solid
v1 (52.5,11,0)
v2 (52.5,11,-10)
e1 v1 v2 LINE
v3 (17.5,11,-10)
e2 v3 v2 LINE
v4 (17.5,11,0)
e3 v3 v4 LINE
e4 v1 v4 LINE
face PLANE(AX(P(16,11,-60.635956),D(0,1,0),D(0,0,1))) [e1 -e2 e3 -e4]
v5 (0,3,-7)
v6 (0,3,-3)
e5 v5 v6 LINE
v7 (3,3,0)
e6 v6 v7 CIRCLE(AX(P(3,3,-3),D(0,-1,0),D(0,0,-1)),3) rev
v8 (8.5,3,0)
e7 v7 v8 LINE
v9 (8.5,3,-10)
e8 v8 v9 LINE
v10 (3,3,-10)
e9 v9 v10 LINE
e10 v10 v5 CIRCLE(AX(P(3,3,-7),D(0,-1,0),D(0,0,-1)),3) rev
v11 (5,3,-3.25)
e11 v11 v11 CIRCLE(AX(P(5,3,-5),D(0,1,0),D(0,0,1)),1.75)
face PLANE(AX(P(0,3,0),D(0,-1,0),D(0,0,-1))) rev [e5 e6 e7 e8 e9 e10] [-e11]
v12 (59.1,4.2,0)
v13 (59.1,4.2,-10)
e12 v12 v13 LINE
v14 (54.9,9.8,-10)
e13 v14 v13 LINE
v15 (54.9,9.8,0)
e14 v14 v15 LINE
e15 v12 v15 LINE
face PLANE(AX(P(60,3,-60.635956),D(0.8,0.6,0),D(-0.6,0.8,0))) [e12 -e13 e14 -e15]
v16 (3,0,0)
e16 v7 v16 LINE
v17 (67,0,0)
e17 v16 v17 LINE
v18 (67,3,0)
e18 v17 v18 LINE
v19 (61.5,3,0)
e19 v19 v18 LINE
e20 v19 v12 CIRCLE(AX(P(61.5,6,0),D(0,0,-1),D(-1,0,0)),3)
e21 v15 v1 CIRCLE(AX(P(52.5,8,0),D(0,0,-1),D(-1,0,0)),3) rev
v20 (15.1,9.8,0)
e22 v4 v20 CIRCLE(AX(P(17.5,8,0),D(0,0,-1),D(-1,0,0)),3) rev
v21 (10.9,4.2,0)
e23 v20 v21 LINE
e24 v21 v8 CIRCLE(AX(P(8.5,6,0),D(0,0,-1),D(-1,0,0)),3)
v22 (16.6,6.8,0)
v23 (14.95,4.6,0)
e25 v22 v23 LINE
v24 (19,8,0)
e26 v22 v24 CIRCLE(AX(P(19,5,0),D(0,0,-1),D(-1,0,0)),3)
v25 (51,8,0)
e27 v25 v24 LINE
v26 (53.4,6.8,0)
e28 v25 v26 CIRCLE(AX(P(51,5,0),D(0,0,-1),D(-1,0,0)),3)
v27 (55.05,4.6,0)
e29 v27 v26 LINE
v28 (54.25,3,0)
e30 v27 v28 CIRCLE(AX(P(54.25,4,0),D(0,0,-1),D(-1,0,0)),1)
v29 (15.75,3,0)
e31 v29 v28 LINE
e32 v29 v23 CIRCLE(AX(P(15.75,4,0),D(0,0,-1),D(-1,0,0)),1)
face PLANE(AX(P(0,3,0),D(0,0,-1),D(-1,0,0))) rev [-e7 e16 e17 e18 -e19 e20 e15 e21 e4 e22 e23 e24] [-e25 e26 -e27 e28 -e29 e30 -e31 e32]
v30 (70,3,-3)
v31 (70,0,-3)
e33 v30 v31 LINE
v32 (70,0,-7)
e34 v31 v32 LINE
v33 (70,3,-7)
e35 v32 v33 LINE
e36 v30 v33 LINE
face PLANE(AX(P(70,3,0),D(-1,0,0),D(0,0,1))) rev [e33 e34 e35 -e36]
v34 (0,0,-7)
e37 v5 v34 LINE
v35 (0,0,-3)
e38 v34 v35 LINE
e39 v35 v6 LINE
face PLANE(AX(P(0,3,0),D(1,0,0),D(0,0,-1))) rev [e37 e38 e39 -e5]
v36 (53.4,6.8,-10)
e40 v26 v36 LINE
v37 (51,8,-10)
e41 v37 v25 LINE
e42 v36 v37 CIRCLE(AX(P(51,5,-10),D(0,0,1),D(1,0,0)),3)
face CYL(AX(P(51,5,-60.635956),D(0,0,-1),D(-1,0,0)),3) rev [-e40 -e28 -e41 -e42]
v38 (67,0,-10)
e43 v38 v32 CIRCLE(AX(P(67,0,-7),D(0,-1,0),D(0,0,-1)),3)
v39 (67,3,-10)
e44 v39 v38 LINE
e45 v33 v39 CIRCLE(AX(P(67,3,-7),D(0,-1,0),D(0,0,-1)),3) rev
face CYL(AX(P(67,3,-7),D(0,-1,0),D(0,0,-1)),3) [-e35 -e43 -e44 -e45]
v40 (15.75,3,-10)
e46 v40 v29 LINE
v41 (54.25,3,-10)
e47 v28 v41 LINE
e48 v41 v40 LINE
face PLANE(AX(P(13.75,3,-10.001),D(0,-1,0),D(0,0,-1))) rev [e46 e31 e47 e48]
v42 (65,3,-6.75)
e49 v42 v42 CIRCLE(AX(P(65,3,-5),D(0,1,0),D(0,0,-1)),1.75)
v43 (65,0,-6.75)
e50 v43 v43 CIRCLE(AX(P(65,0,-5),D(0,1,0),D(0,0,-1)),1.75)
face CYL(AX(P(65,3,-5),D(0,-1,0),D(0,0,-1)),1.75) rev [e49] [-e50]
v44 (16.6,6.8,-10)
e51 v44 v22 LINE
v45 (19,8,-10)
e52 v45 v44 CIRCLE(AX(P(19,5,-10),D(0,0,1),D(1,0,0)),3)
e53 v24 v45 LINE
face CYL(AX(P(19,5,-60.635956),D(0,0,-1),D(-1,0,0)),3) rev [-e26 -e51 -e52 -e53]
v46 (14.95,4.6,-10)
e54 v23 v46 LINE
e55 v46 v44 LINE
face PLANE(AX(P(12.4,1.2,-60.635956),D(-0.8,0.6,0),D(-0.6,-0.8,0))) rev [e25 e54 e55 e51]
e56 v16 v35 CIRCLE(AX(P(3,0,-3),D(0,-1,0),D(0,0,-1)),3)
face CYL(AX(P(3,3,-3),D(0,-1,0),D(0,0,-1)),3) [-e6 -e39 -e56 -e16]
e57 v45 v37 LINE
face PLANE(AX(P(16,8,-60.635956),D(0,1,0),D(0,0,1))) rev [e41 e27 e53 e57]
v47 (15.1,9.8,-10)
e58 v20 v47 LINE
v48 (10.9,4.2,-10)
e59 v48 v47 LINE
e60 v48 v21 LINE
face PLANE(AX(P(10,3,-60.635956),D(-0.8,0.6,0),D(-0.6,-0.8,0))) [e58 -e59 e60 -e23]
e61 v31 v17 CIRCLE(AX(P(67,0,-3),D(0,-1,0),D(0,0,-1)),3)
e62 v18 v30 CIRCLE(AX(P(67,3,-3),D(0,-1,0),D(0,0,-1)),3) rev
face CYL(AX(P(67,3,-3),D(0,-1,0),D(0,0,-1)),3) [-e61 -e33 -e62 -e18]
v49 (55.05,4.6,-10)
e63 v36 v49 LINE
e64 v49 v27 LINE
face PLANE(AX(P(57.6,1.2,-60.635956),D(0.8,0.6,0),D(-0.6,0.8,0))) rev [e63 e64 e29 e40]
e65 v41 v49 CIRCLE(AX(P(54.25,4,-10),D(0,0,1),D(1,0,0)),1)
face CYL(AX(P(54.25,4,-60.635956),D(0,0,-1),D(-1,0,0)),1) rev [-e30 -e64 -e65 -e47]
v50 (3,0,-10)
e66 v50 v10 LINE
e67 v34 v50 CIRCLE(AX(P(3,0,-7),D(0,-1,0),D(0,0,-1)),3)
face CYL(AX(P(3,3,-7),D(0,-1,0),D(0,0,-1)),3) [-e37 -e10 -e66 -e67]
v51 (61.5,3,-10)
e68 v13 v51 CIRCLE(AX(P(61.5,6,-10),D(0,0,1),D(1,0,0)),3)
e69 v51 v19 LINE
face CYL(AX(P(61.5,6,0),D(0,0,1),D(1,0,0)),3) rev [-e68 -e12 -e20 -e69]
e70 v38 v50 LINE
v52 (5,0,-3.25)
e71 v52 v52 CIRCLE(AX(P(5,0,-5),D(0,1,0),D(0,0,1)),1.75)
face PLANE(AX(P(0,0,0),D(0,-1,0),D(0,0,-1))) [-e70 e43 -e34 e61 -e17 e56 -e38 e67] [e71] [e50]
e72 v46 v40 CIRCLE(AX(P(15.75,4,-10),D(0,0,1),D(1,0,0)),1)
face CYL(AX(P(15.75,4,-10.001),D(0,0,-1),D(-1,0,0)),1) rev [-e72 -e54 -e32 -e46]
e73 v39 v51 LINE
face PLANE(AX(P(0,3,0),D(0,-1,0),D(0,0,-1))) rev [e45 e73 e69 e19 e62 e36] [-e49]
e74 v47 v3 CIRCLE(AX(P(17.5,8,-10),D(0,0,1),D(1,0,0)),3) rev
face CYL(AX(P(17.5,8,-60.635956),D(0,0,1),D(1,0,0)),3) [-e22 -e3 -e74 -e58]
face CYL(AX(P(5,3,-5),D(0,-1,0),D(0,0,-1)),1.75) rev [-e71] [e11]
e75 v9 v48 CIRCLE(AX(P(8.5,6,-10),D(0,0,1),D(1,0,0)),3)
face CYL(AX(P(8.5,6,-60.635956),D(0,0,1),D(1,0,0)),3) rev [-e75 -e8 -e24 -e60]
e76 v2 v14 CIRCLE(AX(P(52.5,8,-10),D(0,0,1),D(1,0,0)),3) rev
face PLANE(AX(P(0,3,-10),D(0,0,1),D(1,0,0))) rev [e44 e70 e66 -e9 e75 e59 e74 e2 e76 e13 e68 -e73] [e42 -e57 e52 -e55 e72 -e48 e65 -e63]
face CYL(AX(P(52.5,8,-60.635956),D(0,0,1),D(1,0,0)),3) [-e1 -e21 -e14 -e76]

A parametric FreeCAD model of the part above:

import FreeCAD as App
import Part
import Sketcher
from FreeCAD import Vector
Q = App.Units.Quantity


def edges_at(feature, points):
    """Names of the edges that pass closest to the given points."""
    edges = feature.Shape.Edges
    near = lambda p: min(range(len(edges)), key=lambda i: edges[i].distToShape(Part.Vertex(*p))[0])
    return sorted({f"Edge{near(p) + 1}" for p in points})


def add_polygon(sketch, points):
    """Adds a closed chain of lines whose ends are joined by coincident constraints."""
    first, n = sketch.GeometryCount, len(points)
    for a, b in zip(points, points[1:] + points[:1]):
        sketch.addGeometry(Part.LineSegment(App.Vector(*a, 0), App.Vector(*b, 0)), False)
    for i in range(n):
        sketch.addConstraint(Sketcher.Constraint("Coincident", first + i, 2, first + (i + 1) % n, 1))

doc = App.newDocument("Part")
body = doc.addObject("PartDesign::Body", "Body")

sketch1 = body.newObject("Sketcher::SketchObject", "Sketch")
sketch1.AttachmentSupport = (doc.getObject("XZ_Plane"), [""])
sketch1.MapMode = "FlatFace"
add_polygon(sketch1, [(0, -10), (0, 0), (70, 0), (70, -10)])
sketch1.addGeometry(Part.Circle(Vector(5, -5, 0), Vector(0, 0, 1), 1.8), False)
sketch1.addGeometry(Part.Circle(Vector(65, -5, 0), Vector(0, 0, 1), 1.8), False)
sketch1.addConstraint(Sketcher.Constraint("Vertical", 0))
sketch1.addConstraint(Sketcher.Constraint("Horizontal", 1))
sketch1.addConstraint(Sketcher.Constraint("Vertical", 2))
sketch1.addConstraint(Sketcher.Constraint("Horizontal", 3))
sketch1.addConstraint(Sketcher.Constraint("Coincident", 0, 2, -1, 1))
sketch1.addConstraint(Sketcher.Constraint("Equal", 4, 5))
sketch1.addConstraint(Sketcher.Constraint("Horizontal", 4, 3, 5, 3))
sketch1.addConstraint(Sketcher.Constraint("Diameter", 4, Q("3.5 mm")))
sketch1.addConstraint(Sketcher.Constraint("DistanceX", 1, 1, 1, 2, Q("70 mm")))
sketch1.addConstraint(Sketcher.Constraint("DistanceY", 0, 1, 0, 2, Q("10 mm")))
sketch1.addConstraint(Sketcher.Constraint("DistanceX", -1, 1, 4, 3, Q("5 mm")))
sketch1.addConstraint(Sketcher.Constraint("DistanceY", 4, 3, -1, 1, Q("5 mm")))
sketch1.addConstraint(Sketcher.Constraint("DistanceX", -1, 1, 5, 3, Q("65 mm")))
pad1 = body.newObject("PartDesign::Pad", "Pad")
pad1.Profile = sketch1
pad1.Length = 3
pad1.Reversed = True

sketch2 = body.newObject("Sketcher::SketchObject", "Sketch001")
sketch2.AttachmentSupport = (doc.getObject("XY_Plane"), [""])
sketch2.MapMode = "FlatFace"
add_polygon(sketch2, [(16, 11), (10, 3), (60, 3), (54, 11)])
add_polygon(sketch2, [(16, 6), (17.5, 8), (52.5, 8), (54, 6)])
sketch2.addConstraint(Sketcher.Constraint("Horizontal", 1))
sketch2.addConstraint(Sketcher.Constraint("Horizontal", 3))
sketch2.addConstraint(Sketcher.Constraint("Horizontal", 5))
sketch2.addConstraint(Sketcher.Constraint("Horizontal", 7))
sketch2.addConstraint(Sketcher.Constraint("Parallel", 0, 4))
sketch2.addConstraint(Sketcher.Constraint("Parallel", 2, 6))
sketch2.addConstraint(Sketcher.Constraint("Vertical", 2, 2, 6, 2))
sketch2.addConstraint(Sketcher.Constraint("Vertical", 3, 2, 7, 2))
sketch2.addConstraint(Sketcher.Constraint("Equal", 0, 2))
sketch2.addConstraint(Sketcher.Constraint("DistanceX", 1, 1, 1, 2, Q("50 mm")))
sketch2.addConstraint(Sketcher.Constraint("DistanceX", 3, 2, 3, 1, Q("38 mm")))
sketch2.addConstraint(Sketcher.Constraint("DistanceX", 5, 1, 5, 2, Q("35 mm")))
sketch2.addConstraint(Sketcher.Constraint("Distance", 0, Q("10 mm")))
sketch2.addConstraint(Sketcher.Constraint("DistanceX", -1, 1, 0, 2, Q("10 mm")))
sketch2.addConstraint(Sketcher.Constraint("DistanceY", -1, 1, 0, 2, Q("3 mm")))
sketch2.addConstraint(Sketcher.Constraint("DistanceY", -1, 1, 4, 2, Q("8 mm")))
pad2 = body.newObject("PartDesign::Pad", "Pad001")
pad2.Profile = sketch2
pad2.Length = 10
pad2.Reversed = True

sketch3 = body.newObject("Sketcher::SketchObject", "Sketch002")
sketch3.AttachmentSupport = (doc.getObject("XY_Plane"), [""])
sketch3.MapMode = "FlatFace"
add_polygon(sketch3, [(16, 6), (13.8, 3), (56.2, 3), (54, 6)])
sketch3.addConstraint(Sketcher.Constraint("Horizontal", 1))
sketch3.addConstraint(Sketcher.Constraint("Horizontal", 3))
sketch3.addConstraint(Sketcher.Constraint("Equal", 0, 2))
sketch3.addConstraint(Sketcher.Constraint("DistanceX", 3, 2, 3, 1, Q("38 mm")))
sketch3.addConstraint(Sketcher.Constraint("DistanceX", 1, 1, 1, 2, Q("42.5 mm")))
sketch3.addConstraint(Sketcher.Constraint("DistanceY", -1, 1, 0, 2, Q("3 mm")))
sketch3.addConstraint(Sketcher.Constraint("DistanceX", -1, 1, 2, 2, Q("54 mm")))
sketch3.addConstraint(Sketcher.Constraint("DistanceY", -1, 1, 2, 2, Q("6 mm")))
pocket1 = body.newObject("PartDesign::Pocket", "Pocket")
pocket1.Profile = sketch3
pocket1.Type = "UpToFirst"
doc.recompute()

fillet = body.newObject("PartDesign::Fillet", "Fillet")
fillet.Base = (pocket1, edges_at(pocket1, [
    (54, 11, -5),
    (16, 11, -5),
    (10, 3, -5),
    (60, 3, -5),
    (52.5, 8, -5),
    (17.5, 8, -5),
    (0, 1.5, -10),
    (70, 1.5, -10),
    (70, 1.5, 0),
    (0, 1.5, 0),
]))
fillet.Radius = 3
doc.recompute()

fillet2 = body.newObject("PartDesign::Fillet", "Fillet001")
fillet2.Base = (fillet, edges_at(fillet, [(56.25, 3, -5), (13.75, 3, -5)]))
fillet2.Radius = 1

doc.recompute()
